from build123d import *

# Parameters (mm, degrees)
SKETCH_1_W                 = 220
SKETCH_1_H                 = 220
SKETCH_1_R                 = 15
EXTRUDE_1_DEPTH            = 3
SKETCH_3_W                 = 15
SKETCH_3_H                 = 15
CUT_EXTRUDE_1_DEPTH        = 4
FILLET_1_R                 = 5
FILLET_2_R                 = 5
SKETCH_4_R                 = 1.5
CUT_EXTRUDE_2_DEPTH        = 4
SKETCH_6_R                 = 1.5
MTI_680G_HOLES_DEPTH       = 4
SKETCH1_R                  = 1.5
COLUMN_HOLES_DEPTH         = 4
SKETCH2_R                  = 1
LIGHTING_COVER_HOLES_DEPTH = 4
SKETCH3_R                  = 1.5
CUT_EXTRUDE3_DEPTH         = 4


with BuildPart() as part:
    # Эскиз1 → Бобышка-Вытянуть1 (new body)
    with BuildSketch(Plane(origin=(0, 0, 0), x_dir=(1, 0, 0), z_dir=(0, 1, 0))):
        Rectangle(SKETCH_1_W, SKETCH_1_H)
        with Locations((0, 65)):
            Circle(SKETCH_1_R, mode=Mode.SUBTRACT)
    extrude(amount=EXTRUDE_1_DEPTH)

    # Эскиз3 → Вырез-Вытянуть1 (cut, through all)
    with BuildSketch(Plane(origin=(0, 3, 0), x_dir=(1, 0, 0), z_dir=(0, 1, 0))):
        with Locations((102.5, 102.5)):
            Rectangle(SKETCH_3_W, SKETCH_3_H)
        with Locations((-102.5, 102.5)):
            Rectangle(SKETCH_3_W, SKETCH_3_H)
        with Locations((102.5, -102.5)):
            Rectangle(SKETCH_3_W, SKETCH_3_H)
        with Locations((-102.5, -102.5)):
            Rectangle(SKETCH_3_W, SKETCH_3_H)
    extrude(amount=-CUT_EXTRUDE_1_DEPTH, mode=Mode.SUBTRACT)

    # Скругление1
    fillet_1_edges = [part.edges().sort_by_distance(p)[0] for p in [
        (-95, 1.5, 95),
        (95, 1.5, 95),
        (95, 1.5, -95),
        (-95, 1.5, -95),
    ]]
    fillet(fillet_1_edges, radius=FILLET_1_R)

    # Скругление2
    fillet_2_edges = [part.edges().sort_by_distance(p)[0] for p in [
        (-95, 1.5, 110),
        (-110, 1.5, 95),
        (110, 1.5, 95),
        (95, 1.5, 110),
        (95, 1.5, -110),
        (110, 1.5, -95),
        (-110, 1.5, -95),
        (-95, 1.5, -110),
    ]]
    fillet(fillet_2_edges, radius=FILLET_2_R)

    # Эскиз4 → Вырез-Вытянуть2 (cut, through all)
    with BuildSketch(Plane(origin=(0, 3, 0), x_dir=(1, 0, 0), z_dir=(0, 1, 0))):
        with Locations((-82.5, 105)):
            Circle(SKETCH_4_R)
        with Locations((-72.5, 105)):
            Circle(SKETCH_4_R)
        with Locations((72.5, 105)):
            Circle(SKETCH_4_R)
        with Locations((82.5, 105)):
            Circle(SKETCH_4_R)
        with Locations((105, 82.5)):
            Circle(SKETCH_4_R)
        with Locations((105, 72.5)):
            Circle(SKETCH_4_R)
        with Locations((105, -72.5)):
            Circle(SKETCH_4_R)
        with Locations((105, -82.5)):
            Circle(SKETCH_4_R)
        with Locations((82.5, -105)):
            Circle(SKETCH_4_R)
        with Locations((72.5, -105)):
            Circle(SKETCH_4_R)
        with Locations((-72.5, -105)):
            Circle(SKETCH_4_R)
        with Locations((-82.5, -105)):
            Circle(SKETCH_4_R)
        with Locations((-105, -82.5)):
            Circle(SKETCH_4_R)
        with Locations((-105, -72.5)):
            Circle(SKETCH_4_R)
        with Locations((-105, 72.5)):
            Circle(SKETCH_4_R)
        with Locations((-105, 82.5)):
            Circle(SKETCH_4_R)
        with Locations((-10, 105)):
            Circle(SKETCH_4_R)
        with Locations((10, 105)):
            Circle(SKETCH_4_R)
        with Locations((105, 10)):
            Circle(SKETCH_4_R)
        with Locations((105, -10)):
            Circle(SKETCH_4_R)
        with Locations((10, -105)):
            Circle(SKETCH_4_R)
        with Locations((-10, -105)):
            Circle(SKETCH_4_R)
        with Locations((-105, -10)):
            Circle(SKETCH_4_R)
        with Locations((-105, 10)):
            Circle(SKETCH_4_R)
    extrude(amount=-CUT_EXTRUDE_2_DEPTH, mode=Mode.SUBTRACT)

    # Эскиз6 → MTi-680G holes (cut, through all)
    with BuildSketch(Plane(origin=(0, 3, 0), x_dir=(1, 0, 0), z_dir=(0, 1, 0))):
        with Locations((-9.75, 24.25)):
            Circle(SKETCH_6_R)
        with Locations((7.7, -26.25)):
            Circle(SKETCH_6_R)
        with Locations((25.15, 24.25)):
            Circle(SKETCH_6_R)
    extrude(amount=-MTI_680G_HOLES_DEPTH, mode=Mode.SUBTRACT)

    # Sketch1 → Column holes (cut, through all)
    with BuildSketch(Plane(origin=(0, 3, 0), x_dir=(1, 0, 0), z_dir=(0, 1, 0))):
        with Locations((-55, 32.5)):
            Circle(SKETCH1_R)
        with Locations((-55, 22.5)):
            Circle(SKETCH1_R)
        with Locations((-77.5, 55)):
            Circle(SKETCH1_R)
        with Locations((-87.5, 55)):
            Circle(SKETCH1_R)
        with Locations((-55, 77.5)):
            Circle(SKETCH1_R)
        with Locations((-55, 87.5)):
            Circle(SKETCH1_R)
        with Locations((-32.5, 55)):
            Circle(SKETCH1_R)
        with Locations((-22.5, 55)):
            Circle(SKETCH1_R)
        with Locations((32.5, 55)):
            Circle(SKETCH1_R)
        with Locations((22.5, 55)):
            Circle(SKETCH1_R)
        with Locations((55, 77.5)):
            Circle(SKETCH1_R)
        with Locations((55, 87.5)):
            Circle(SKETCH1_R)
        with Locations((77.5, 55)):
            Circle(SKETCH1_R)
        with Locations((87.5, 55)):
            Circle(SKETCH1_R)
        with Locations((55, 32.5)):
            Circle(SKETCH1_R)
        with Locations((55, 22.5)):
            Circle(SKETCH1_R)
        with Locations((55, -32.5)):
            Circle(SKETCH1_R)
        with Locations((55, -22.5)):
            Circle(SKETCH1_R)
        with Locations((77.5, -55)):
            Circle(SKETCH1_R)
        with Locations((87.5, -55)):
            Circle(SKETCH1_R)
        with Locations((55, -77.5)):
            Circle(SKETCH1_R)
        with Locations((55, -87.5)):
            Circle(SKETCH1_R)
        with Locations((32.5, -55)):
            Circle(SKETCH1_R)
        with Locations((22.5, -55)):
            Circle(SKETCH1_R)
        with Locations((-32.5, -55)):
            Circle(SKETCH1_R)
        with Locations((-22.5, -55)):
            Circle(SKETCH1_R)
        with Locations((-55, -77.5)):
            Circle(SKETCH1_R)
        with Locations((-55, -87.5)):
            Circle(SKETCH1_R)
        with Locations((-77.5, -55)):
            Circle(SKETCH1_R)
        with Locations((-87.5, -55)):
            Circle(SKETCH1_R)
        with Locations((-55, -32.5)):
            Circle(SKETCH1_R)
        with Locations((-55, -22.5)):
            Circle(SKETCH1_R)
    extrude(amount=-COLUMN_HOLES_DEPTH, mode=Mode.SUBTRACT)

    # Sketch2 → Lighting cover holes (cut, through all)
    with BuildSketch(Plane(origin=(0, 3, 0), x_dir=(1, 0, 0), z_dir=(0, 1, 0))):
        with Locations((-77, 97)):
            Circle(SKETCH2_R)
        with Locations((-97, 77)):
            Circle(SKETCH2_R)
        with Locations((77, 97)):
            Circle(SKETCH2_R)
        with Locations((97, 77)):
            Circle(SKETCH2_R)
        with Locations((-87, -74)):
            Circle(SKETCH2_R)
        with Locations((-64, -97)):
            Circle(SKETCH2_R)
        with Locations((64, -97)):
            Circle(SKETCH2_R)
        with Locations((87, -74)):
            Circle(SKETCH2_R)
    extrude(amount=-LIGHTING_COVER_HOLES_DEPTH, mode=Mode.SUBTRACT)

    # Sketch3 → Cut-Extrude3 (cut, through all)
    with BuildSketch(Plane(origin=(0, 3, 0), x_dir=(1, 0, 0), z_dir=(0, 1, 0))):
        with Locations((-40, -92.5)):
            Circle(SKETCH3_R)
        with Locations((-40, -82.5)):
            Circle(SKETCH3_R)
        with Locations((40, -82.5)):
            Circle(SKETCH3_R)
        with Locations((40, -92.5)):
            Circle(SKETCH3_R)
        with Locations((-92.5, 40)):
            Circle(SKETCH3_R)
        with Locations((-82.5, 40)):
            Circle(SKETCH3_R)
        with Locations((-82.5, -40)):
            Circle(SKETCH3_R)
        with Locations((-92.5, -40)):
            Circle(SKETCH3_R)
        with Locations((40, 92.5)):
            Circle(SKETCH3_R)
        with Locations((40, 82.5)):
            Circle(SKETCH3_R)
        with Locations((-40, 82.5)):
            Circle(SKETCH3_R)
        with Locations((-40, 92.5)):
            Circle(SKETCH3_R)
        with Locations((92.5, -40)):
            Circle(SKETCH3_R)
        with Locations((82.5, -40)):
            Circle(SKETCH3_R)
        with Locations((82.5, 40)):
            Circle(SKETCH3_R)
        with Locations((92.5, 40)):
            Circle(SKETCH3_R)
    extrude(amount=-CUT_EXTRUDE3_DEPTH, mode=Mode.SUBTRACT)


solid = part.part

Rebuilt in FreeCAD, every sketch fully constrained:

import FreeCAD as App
import Part
import Sketcher

V = App.Vector


def edges_at(feature, points):
    """Names of the edges that pass closest to the given points."""
    edges = feature.Shape.Edges
    near = lambda p: min(range(len(edges)), key=lambda i: edges[i].distToShape(Part.Vertex(*p))[0])
    return sorted({f"Edge{near(p) + 1}" for p in points})


def add_polygon(sketch, points):
    """Adds a closed chain of lines whose ends are joined by coincident constraints."""
    first, n = sketch.GeometryCount, len(points)
    for a, b in zip(points, points[1:] + points[:1]):
        sketch.addGeometry(Part.LineSegment(App.Vector(*a, 0), App.Vector(*b, 0)), False)
    for i in range(n):
        sketch.addConstraint(Sketcher.Constraint("Coincident", first + i, 2, first + (i + 1) % n, 1))

doc = App.newDocument("Part")
body = doc.addObject("PartDesign::Body", "Body")

# Sketch on XZ plane
sketch1 = body.newObject("Sketcher::SketchObject", "Sketch")
sketch1.AttachmentSupport = (doc.getObject("XZ_Plane"), [""])
sketch1.MapMode = "FlatFace"
add_polygon(sketch1, [(-110, -110), (-110, 110), (110, 110), (110, -110)])  # lines 0-3
sketch1.addGeometry(Part.Circle(V(0, -65, 0), V(0, 0, 1), 15), False)  # 4
sketch1.addConstraint([
    Sketcher.Constraint("Vertical", 0),
    Sketcher.Constraint("Horizontal", 1),
    Sketcher.Constraint("Vertical", 2),
    Sketcher.Constraint("Horizontal", 3),
    Sketcher.Constraint("Symmetric", 0, 2, 2, 2, -1, 1),
    Sketcher.Constraint("PointOnObject", 4, 3, -2),
    Sketcher.Constraint("Equal", 3, 0),
    Sketcher.Constraint("Diameter", 4, 30.0),
    Sketcher.Constraint("DistanceX", 1, 1, 1, 2, 220.0),
    Sketcher.Constraint("DistanceY", 4, 3, -1, 1, 65.0),
])
pad1 = body.newObject("PartDesign::Pad", "Pad")
pad1.Profile = sketch1
pad1.Length = 3
pad1.Reversed = True

# Sketch on XZ plane
sketch2 = body.newObject("Sketcher::SketchObject", "Sketch001")
sketch2.AttachmentSupport = (doc.getObject("XZ_Plane"), [""])
sketch2.MapMode = "FlatFace"
sketch2.AttachmentOffset = App.Placement(V(0, 0, -3), App.Rotation())
add_polygon(sketch2, [(95, -110), (95, -95), (110, -95), (110, -110)])  # lines 0-3
add_polygon(sketch2, [(-110, -110), (-110, -95), (-95, -95), (-95, -110)])  # lines 4-7
add_polygon(sketch2, [(95, 95), (95, 110), (110, 110), (110, 95)])  # lines 8-11
add_polygon(sketch2, [(-110, 95), (-110, 110), (-95, 110), (-95, 95)])  # lines 12-15
sketch2.addConstraint([
    Sketcher.Constraint("Vertical", 0),
    Sketcher.Constraint("Horizontal", 1),
    Sketcher.Constraint("Vertical", 2),
    Sketcher.Constraint("Horizontal", 3),
    Sketcher.Constraint("Vertical", 4),
    Sketcher.Constraint("Horizontal", 5),
    Sketcher.Constraint("Vertical", 6),
    Sketcher.Constraint("Horizontal", 7),
    Sketcher.Constraint("Vertical", 8),
    Sketcher.Constraint("Horizontal", 9),
    Sketcher.Constraint("Vertical", 10),
    Sketcher.Constraint("Horizontal", 11),
    Sketcher.Constraint("Vertical", 12),
    Sketcher.Constraint("Horizontal", 13),
    Sketcher.Constraint("Vertical", 14),
    Sketcher.Constraint("Horizontal", 15),
    Sketcher.Constraint("Symmetric", 6, 2, 8, 2, -1, 1),
    Sketcher.Constraint("Symmetric", 4, 2, 10, 2, -1, 1),
    Sketcher.Constraint("Symmetric", 2, 2, 12, 2, -1, 1),
    Sketcher.Constraint("Symmetric", 0, 2, 14, 2, -1, 1),
    Sketcher.Constraint("Symmetric", 1, 2, 4, 2, -2),
    Sketcher.Constraint("Symmetric", 3, 2, 6, 2, -2),
    Sketcher.Constraint("Equal", 15, 0),
    Sketcher.Constraint("DistanceX", 1, 1, 1, 2, 15.0),
    Sketcher.Constraint("DistanceX", -1, 1, 0, 2, 95.0),
    Sketcher.Constraint("DistanceY", 0, 2, -1, 1, 95.0),
])
pocket1 = body.newObject("PartDesign::Pocket", "Pocket")
pocket1.Profile = sketch2
pocket1.Type = "ThroughAll"
pocket1.Reversed = True
doc.recompute()

fillet = body.newObject("PartDesign::Fillet", "Fillet")
fillet.Base = (pocket1, edges_at(pocket1, [
    (-95, 1.5, 95),
    (95, 1.5, 95),
    (95, 1.5, -95),
    (-95, 1.5, -95),
]))
fillet.Radius = 5
doc.recompute()

fillet2 = body.newObject("PartDesign::Fillet", "Fillet001")
fillet2.Base = (fillet, edges_at(fillet, [
    (-95, 1.5, 110),
    (-110, 1.5, 95),
    (110, 1.5, 95),
    (95, 1.5, 110),
    (95, 1.5, -110),
    (110, 1.5, -95),
    (-110, 1.5, -95),
    (-95, 1.5, -110),
]))
fillet2.Radius = 5

# Sketch on XZ plane
sketch3 = body.newObject("Sketcher::SketchObject", "Sketch002")
sketch3.AttachmentSupport = (doc.getObject("XZ_Plane"), [""])
sketch3.MapMode = "FlatFace"
sketch3.AttachmentOffset = App.Placement(V(0, 0, -3), App.Rotation())
sketch3.addGeometry([
    Part.Circle(V(-82.5, -105, 0), V(0, 0, 1), 1.5),  # 0
    Part.Circle(V(-72.5, -105, 0), V(0, 0, 1), 1.5),  # 1
    Part.Circle(V(72.5, -105, 0), V(0, 0, 1), 1.5),  # 2
    Part.Circle(V(82.5, -105, 0), V(0, 0, 1), 1.5),  # 3
    Part.Circle(V(105, -82.5, 0), V(0, 0, 1), 1.5),  # 4
    Part.Circle(V(105, -72.5, 0), V(0, 0, 1), 1.5),  # 5
    Part.Circle(V(105, 72.5, 0), V(0, 0, 1), 1.5),  # 6
    Part.Circle(V(105, 82.5, 0), V(0, 0, 1), 1.5),  # 7
    Part.Circle(V(82.5, 105, 0), V(0, 0, 1), 1.5),  # 8
    Part.Circle(V(72.5, 105, 0), V(0, 0, 1), 1.5),  # 9
    Part.Circle(V(-72.5, 105, 0), V(0, 0, 1), 1.5),  # 10
    Part.Circle(V(-82.5, 105, 0), V(0, 0, 1), 1.5),  # 11
    Part.Circle(V(-105, 82.5, 0), V(0, 0, 1), 1.5),  # 12
    Part.Circle(V(-105, 72.5, 0), V(0, 0, 1), 1.5),  # 13
    Part.Circle(V(-105, -72.5, 0), V(0, 0, 1), 1.5),  # 14
    Part.Circle(V(-105, -82.5, 0), V(0, 0, 1), 1.5),  # 15
    Part.Circle(V(-10, -105, 0), V(0, 0, 1), 1.5),  # 16
    Part.Circle(V(10, -105, 0), V(0, 0, 1), 1.5),  # 17
    Part.Circle(V(105, -10, 0), V(0, 0, 1), 1.5),  # 18
    Part.Circle(V(105, 10, 0), V(0, 0, 1), 1.5),  # 19
    Part.Circle(V(10, 105, 0), V(0, 0, 1), 1.5),  # 20
    Part.Circle(V(-10, 105, 0), V(0, 0, 1), 1.5),  # 21
    Part.Circle(V(-105, 10, 0), V(0, 0, 1), 1.5),  # 22
    Part.Circle(V(-105, -10, 0), V(0, 0, 1), 1.5),  # 23
], False)
sketch3.addConstraint([
    Sketcher.Constraint("Equal", 0, 1),
    Sketcher.Constraint("Equal", 1, 2),
    Sketcher.Constraint("Equal", 2, 3),
    Sketcher.Constraint("Equal", 3, 4),
    Sketcher.Constraint("Equal", 4, 5),
    Sketcher.Constraint("Equal", 5, 6),
    Sketcher.Constraint("Equal", 6, 7),
    Sketcher.Constraint("Equal", 7, 8),
    Sketcher.Constraint("Equal", 8, 9),
    Sketcher.Constraint("Equal", 9, 10),
    Sketcher.Constraint("Equal", 10, 11),
    Sketcher.Constraint("Equal", 11, 12),
    Sketcher.Constraint("Equal", 12, 13),
    Sketcher.Constraint("Equal", 13, 14),
    Sketcher.Constraint("Equal", 14, 15),
    Sketcher.Constraint("Equal", 15, 16),
    Sketcher.Constraint("Equal", 16, 17),
    Sketcher.Constraint("Equal", 17, 18),
    Sketcher.Constraint("Equal", 18, 19),
    Sketcher.Constraint("Equal", 19, 20),
    Sketcher.Constraint("Equal", 20, 21),
    Sketcher.Constraint("Equal", 21, 22),
    Sketcher.Constraint("Equal", 22, 23),
    Sketcher.Constraint("Symmetric", 0, 3, 8, 3, -1, 1),
    Sketcher.Constraint("Symmetric", 1, 3, 9, 3, -1, 1),
    Sketcher.Constraint("Symmetric", 2, 3, 10, 3, -1, 1),
    Sketcher.Constraint("Symmetric", 3, 3, 11, 3, -1, 1),
    Sketcher.Constraint("Symmetric", 4, 3, 12, 3, -1, 1),
    Sketcher.Constraint("Symmetric", 5, 3, 13, 3, -1, 1),
    Sketcher.Constraint("Symmetric", 6, 3, 14, 3, -1, 1),
    Sketcher.Constraint("Symmetric", 7, 3, 15, 3, -1, 1),
    Sketcher.Constraint("Symmetric", 16, 3, 20, 3, -1, 1),
    Sketcher.Constraint("Symmetric", 17, 3, 21, 3, -1, 1),
    Sketcher.Constraint("Symmetric", 18, 3, 22, 3, -1, 1),
    Sketcher.Constraint("Symmetric", 19, 3, 23, 3, -1, 1),
    Sketcher.Constraint("Symmetric", 1, 3, 2, 3, -2),
    Sketcher.Constraint("Symmetric", 0, 3, 3, 3, -2),
    Sketcher.Constraint("Symmetric", 7, 3, 12, 3, -2),
    Sketcher.Constraint("Symmetric", 6, 3, 13, 3, -2),
    Sketcher.Constraint("Symmetric", 16, 3, 17, 3, -2),
    Sketcher.Constraint("Symmetric", 19, 3, 22, 3, -2),
    Sketcher.Constraint("Horizontal", 0, 3, 1, 3),
    Sketcher.Constraint("Horizontal", 3, 3, 16, 3),
    Sketcher.Constraint("Vertical", 4, 3, 5, 3),
    Sketcher.Constraint("Vertical", 7, 3, 18, 3),
    Sketcher.Constraint("Diameter", 0, 3.0),
    Sketcher.Constraint("DistanceY", 0, 3, -1, 1, 105.0),
    Sketcher.Constraint("DistanceX", -1, 1, 4, 3, 105.0),
    Sketcher.Constraint("DistanceX", 16, 3, -1, 1, 10.0),
    Sketcher.Constraint("DistanceY", 18, 3, -1, 1, 10.0),
    Sketcher.Constraint("DistanceX", 0, 3, 1, 3, 10.0),
    Sketcher.Constraint("DistanceX", 1, 3, 2, 3, 145.0),
    Sketcher.Constraint("DistanceY", 4, 3, 5, 3, 10.0),
    Sketcher.Constraint("DistanceY", 5, 3, 6, 3, 145.0),
])
pocket2 = body.newObject("PartDesign::Pocket", "Pocket001")
pocket2.Profile = sketch3
pocket2.Type = "ThroughAll"
pocket2.Reversed = True

# Sketch on XZ plane
sketch4 = body.newObject("Sketcher::SketchObject", "Sketch003")
sketch4.AttachmentSupport = (doc.getObject("XZ_Plane"), [""])
sketch4.MapMode = "FlatFace"
sketch4.AttachmentOffset = App.Placement(V(0, 0, -3), App.Rotation())
sketch4.addGeometry([
    Part.Circle(V(-9.8, -24.2, 0), V(0, 0, 1), 1.5),
    Part.Circle(V(7.7, 26.2, 0), V(0, 0, 1), 1.5),
    Part.Circle(V(25.1, -24.2, 0), V(0, 0, 1), 1.5),
], False)
sketch4.addConstraint([
    Sketcher.Constraint("Equal", 0, 1),
    Sketcher.Constraint("Equal", 1, 2),
    Sketcher.Constraint("Horizontal", 0, 3, 2, 3),
    Sketcher.Constraint("Diameter", 0, 3.0),
    Sketcher.Constraint("DistanceX", -1, 1, 1, 3, 7.7),
    Sketcher.Constraint("DistanceY", 0, 3, 1, 3, 50.5),
    Sketcher.Constraint("DistanceX", 0, 3, 2, 3, 34.9),
    Sketcher.Constraint("DistanceX", 0, 3, -1, 1, 9.75),
    Sketcher.Constraint("DistanceY", 0, 3, -1, 1, 24.25),
])
pocket3 = body.newObject("PartDesign::Pocket", "Pocket002")
pocket3.Profile = sketch4
pocket3.Type = "ThroughAll"
pocket3.Reversed = True

# Sketch on XZ plane
sketch5 = body.newObject("Sketcher::SketchObject", "Sketch004")
sketch5.AttachmentSupport = (doc.getObject("XZ_Plane"), [""])
sketch5.MapMode = "FlatFace"
sketch5.AttachmentOffset = App.Placement(V(0, 0, -3), App.Rotation())
sketch5.addGeometry([
    Part.Circle(V(-55, -32.5, 0), V(0, 0, 1), 1.5),  # 0
    Part.Circle(V(-55, -22.5, 0), V(0, 0, 1), 1.5),  # 1
    Part.Circle(V(-77.5, -55, 0), V(0, 0, 1), 1.5),  # 2
    Part.Circle(V(-87.5, -55, 0), V(0, 0, 1), 1.5),  # 3
    Part.Circle(V(-55, -77.5, 0), V(0, 0, 1), 1.5),  # 4
    Part.Circle(V(-55, -87.5, 0), V(0, 0, 1), 1.5),  # 5
    Part.Circle(V(-32.5, -55, 0), V(0, 0, 1), 1.5),  # 6
    Part.Circle(V(-22.5, -55, 0), V(0, 0, 1), 1.5),  # 7
    Part.Circle(V(32.5, -55, 0), V(0, 0, 1), 1.5),  # 8
    Part.Circle(V(22.5, -55, 0), V(0, 0, 1), 1.5),  # 9
    Part.Circle(V(55, -77.5, 0), V(0, 0, 1), 1.5),  # 10
    Part.Circle(V(55, -87.5, 0), V(0, 0, 1), 1.5),  # 11
    Part.Circle(V(77.5, -55, 0), V(0, 0, 1), 1.5),  # 12
    Part.Circle(V(87.5, -55, 0), V(0, 0, 1), 1.5),  # 13
    Part.Circle(V(55, -32.5, 0), V(0, 0, 1), 1.5),  # 14
    Part.Circle(V(55, -22.5, 0), V(0, 0, 1), 1.5),  # 15
    Part.Circle(V(55, 32.5, 0), V(0, 0, 1), 1.5),  # 16
    Part.Circle(V(55, 22.5, 0), V(0, 0, 1), 1.5),  # 17
    Part.Circle(V(77.5, 55, 0), V(0, 0, 1), 1.5),  # 18
    Part.Circle(V(87.5, 55, 0), V(0, 0, 1), 1.5),  # 19
    Part.Circle(V(55, 77.5, 0), V(0, 0, 1), 1.5),  # 20
    Part.Circle(V(55, 87.5, 0), V(0, 0, 1), 1.5),  # 21
    Part.Circle(V(32.5, 55, 0), V(0, 0, 1), 1.5),  # 22
    Part.Circle(V(22.5, 55, 0), V(0, 0, 1), 1.5),  # 23
    Part.Circle(V(-32.5, 55, 0), V(0, 0, 1), 1.5),  # 24
    Part.Circle(V(-22.5, 55, 0), V(0, 0, 1), 1.5),  # 25
    Part.Circle(V(-55, 77.5, 0), V(0, 0, 1), 1.5),  # 26
    Part.Circle(V(-55, 87.5, 0), V(0, 0, 1), 1.5),  # 27
    Part.Circle(V(-77.5, 55, 0), V(0, 0, 1), 1.5),  # 28
    Part.Circle(V(-87.5, 55, 0), V(0, 0, 1), 1.5),  # 29
    Part.Circle(V(-55, 32.5, 0), V(0, 0, 1), 1.5),  # 30
    Part.Circle(V(-55, 22.5, 0), V(0, 0, 1), 1.5),  # 31
], False)
sketch5.addConstraint([
    Sketcher.Constraint("Equal", 0, 1),
    Sketcher.Constraint("Equal", 1, 2),
    Sketcher.Constraint("Equal", 2, 3),
    Sketcher.Constraint("Equal", 3, 4),
    Sketcher.Constraint("Equal", 4, 5),
    Sketcher.Constraint("Equal", 5, 6),
    Sketcher.Constraint("Equal", 6, 7),
    Sketcher.Constraint("Equal", 7, 8),
    Sketcher.Constraint("Equal", 8, 9),
    Sketcher.Constraint("Equal", 9, 10),
    Sketcher.Constraint("Equal", 10, 11),
    Sketcher.Constraint("Equal", 11, 12),
    Sketcher.Constraint("Equal", 12, 13),
    Sketcher.Constraint("Equal", 13, 14),
    Sketcher.Constraint("Equal", 14, 15),
    Sketcher.Constraint("Equal", 15, 16),
    Sketcher.Constraint("Equal", 16, 17),
    Sketcher.Constraint("Equal", 17, 18),
    Sketcher.Constraint("Equal", 18, 19),
    Sketcher.Constraint("Equal", 19, 20),
    Sketcher.Constraint("Equal", 20, 21),
    Sketcher.Constraint("Equal", 21, 22),
    Sketcher.Constraint("Equal", 22, 23),
    Sketcher.Constraint("Equal", 23, 24),
    Sketcher.Constraint("Equal", 24, 25),
    Sketcher.Constraint("Equal", 25, 26),
    Sketcher.Constraint("Equal", 26, 27),
    Sketcher.Constraint("Equal", 27, 28),
    Sketcher.Constraint("Equal", 28, 29),
    Sketcher.Constraint("Equal", 29, 30),
    Sketcher.Constraint("Equal", 30, 31),
    Sketcher.Constraint("Symmetric", 0, 3, 16, 3, -1, 1),
    Sketcher.Constraint("Symmetric", 1, 3, 17, 3, -1, 1),
    Sketcher.Constraint("Symmetric", 2, 3, 18, 3, -1, 1),
    Sketcher.Constraint("Symmetric", 3, 3, 19, 3, -1, 1),
    Sketcher.Constraint("Symmetric", 4, 3, 20, 3, -1, 1),
    Sketcher.Constraint("Symmetric", 5, 3, 21, 3, -1, 1),
    Sketcher.Constraint("Symmetric", 6, 3, 22, 3, -1, 1),
    Sketcher.Constraint("Symmetric", 7, 3, 23, 3, -1, 1),
    Sketcher.Constraint("Symmetric", 8, 3, 24, 3, -1, 1),
    Sketcher.Constraint("Symmetric", 9, 3, 25, 3, -1, 1),
    Sketcher.Constraint("Symmetric", 10, 3, 26, 3, -1, 1),
    Sketcher.Constraint("Symmetric", 11, 3, 27, 3, -1, 1),
    Sketcher.Constraint("Symmetric", 12, 3, 28, 3, -1, 1),
    Sketcher.Constraint("Symmetric", 13, 3, 29, 3, -1, 1),
    Sketcher.Constraint("Symmetric", 14, 3, 30, 3, -1, 1),
    Sketcher.Constraint("Symmetric", 15, 3, 31, 3, -1, 1),
    Sketcher.Constraint("Symmetric", 6, 3, 8, 3, -2),
    Sketcher.Constraint("Symmetric", 7, 3, 9, 3, -2),
    Sketcher.Constraint("Symmetric", 4, 3, 10, 3, -2),
    Sketcher.Constraint("Symmetric", 5, 3, 11, 3, -2),
    Sketcher.Constraint("Symmetric", 2, 3, 12, 3, -2),
    Sketcher.Constraint("Symmetric", 3, 3, 13, 3, -2),
    Sketcher.Constraint("Symmetric", 0, 3, 14, 3, -2),
    Sketcher.Constraint("Symmetric", 1, 3, 15, 3, -2),
    Sketcher.Constraint("Horizontal", 2, 3, 3, 3),
    Sketcher.Constraint("Horizontal", 3, 3, 6, 3),
    Sketcher.Constraint("Horizontal", 6, 3, 7, 3),
    Sketcher.Constraint("Vertical", 0, 3, 1, 3),
    Sketcher.Constraint("Vertical", 1, 3, 4, 3),
    Sketcher.Constraint("Vertical", 4, 3, 5, 3),
    Sketcher.Constraint("Diameter", 0, 3.0),
    Sketcher.Constraint("DistanceX", 0, 3, -1, 1, 55.0),
    Sketcher.Constraint("DistanceY", 2, 3, -1, 1, 55.0),
    Sketcher.Constraint("DistanceY", 0, 3, 1, 3, 10.0),
    Sketcher.Constraint("DistanceX", 3, 3, 2, 3, 10.0),
    Sketcher.Constraint("DistanceY", 4, 3, 0, 3, 45.0),
    Sketcher.Constraint("DistanceY", 5, 3, 4, 3, 10.0),
    Sketcher.Constraint("DistanceX", 2, 3, 6, 3, 45.0),
    Sketcher.Constraint("DistanceX", 6, 3, 7, 3, 10.0),
    Sketcher.Constraint("DistanceX", 7, 3, 8, 3, 55.0),
    Sketcher.Constraint("DistanceY", 15, 3, 16, 3, 55.0),
])
pocket4 = body.newObject("PartDesign::Pocket", "Pocket003")
pocket4.Profile = sketch5
pocket4.Type = "ThroughAll"
pocket4.Reversed = True

# Sketch on XZ plane
sketch6 = body.newObject("Sketcher::SketchObject", "Sketch005")
sketch6.AttachmentSupport = (doc.getObject("XZ_Plane"), [""])
sketch6.MapMode = "FlatFace"
sketch6.AttachmentOffset = App.Placement(V(0, 0, -3), App.Rotation())
sketch6.addGeometry([
    Part.Circle(V(-77, -97, 0), V(0, 0, 1), 1),  # 0
    Part.Circle(V(-97, -77, 0), V(0, 0, 1), 1),  # 1
    Part.Circle(V(77, -97, 0), V(0, 0, 1), 1),  # 2
    Part.Circle(V(97, -77, 0), V(0, 0, 1), 1),  # 3
    Part.Circle(V(-87, 74, 0), V(0, 0, 1), 1),  # 4
    Part.Circle(V(-64, 97, 0), V(0, 0, 1), 1),  # 5
    Part.Circle(V(64, 97, 0), V(0, 0, 1), 1),  # 6
    Part.Circle(V(87, 74, 0), V(0, 0, 1), 1),  # 7
], False)
sketch6.addConstraint([
    Sketcher.Constraint("Equal", 0, 1),
    Sketcher.Constraint("Equal", 1, 2),
    Sketcher.Constraint("Equal", 2, 3),
    Sketcher.Constraint("Equal", 3, 4),
    Sketcher.Constraint("Equal", 4, 5),
    Sketcher.Constraint("Equal", 5, 6),
    Sketcher.Constraint("Equal", 6, 7),
    Sketcher.Constraint("Symmetric", 0, 3, 2, 3, -2),
    Sketcher.Constraint("Symmetric", 1, 3, 3, 3, -2),
    Sketcher.Constraint("Symmetric", 5, 3, 6, 3, -2),
    Sketcher.Constraint("Symmetric", 4, 3, 7, 3, -2),
    Sketcher.Constraint("Diameter", 0, 2.0),
    Sketcher.Constraint("DistanceX", 0, 3, -1, 1, 77.0),
    Sketcher.Constraint("DistanceY", 0, 3, -1, 1, 97.0),
    Sketcher.Constraint("DistanceX", 1, 3, -1, 1, 97.0),
    Sketcher.Constraint("DistanceY", 1, 3, -1, 1, 77.0),
    Sketcher.Constraint("DistanceX", 4, 3, -1, 1, 87.0),
    Sketcher.Constraint("DistanceY", -1, 1, 4, 3, 74.0),
    Sketcher.Constraint("DistanceX", 5, 3, -1, 1, 64.0),
    Sketcher.Constraint("DistanceY", -1, 1, 5, 3, 97.0),
])
pocket5 = body.newObject("PartDesign::Pocket", "Pocket004")
pocket5.Profile = sketch6
pocket5.Type = "ThroughAll"
pocket5.Reversed = True

# Sketch on XZ plane
sketch7 = body.newObject("Sketcher::SketchObject", "Sketch006")
sketch7.AttachmentSupport = (doc.getObject("XZ_Plane"), [""])
sketch7.MapMode = "FlatFace"
sketch7.AttachmentOffset = App.Placement(V(0, 0, -3), App.Rotation())
sketch7.addGeometry([
    Part.Circle(V(-40, 92.5, 0), V(0, 0, 1), 1.5),  # 0
    Part.Circle(V(-40, 82.5, 0), V(0, 0, 1), 1.5),  # 1
    Part.Circle(V(40, 82.5, 0), V(0, 0, 1), 1.5),  # 2
    Part.Circle(V(40, 92.5, 0), V(0, 0, 1), 1.5),  # 3
    Part.Circle(V(-92.5, -40, 0), V(0, 0, 1), 1.5),  # 4
    Part.Circle(V(-82.5, -40, 0), V(0, 0, 1), 1.5),  # 5
    Part.Circle(V(-82.5, 40, 0), V(0, 0, 1), 1.5),  # 6
    Part.Circle(V(-92.5, 40, 0), V(0, 0, 1), 1.5),  # 7
    Part.Circle(V(40, -92.5, 0), V(0, 0, 1), 1.5),  # 8
    Part.Circle(V(40, -82.5, 0), V(0, 0, 1), 1.5),  # 9
    Part.Circle(V(-40, -82.5, 0), V(0, 0, 1), 1.5),  # 10
    Part.Circle(V(-40, -92.5, 0), V(0, 0, 1), 1.5),  # 11
    Part.Circle(V(92.5, 40, 0), V(0, 0, 1), 1.5),  # 12
    Part.Circle(V(82.5, 40, 0), V(0, 0, 1), 1.5),  # 13
    Part.Circle(V(82.5, -40, 0), V(0, 0, 1), 1.5),  # 14
    Part.Circle(V(92.5, -40, 0), V(0, 0, 1), 1.5),  # 15
], False)
sketch7.addConstraint([
    Sketcher.Constraint("Equal", 0, 1),
    Sketcher.Constraint("Equal", 1, 2),
    Sketcher.Constraint("Equal", 2, 3),
    Sketcher.Constraint("Equal", 3, 4),
    Sketcher.Constraint("Equal", 4, 5),
    Sketcher.Constraint("Equal", 5, 6),
    Sketcher.Constraint("Equal", 6, 7),
    Sketcher.Constraint("Equal", 7, 8),
    Sketcher.Constraint("Equal", 8, 9),
    Sketcher.Constraint("Equal", 9, 10),
    Sketcher.Constraint("Equal", 10, 11),
    Sketcher.Constraint("Equal", 11, 12),
    Sketcher.Constraint("Equal", 12, 13),
    Sketcher.Constraint("Equal", 13, 14),
    Sketcher.Constraint("Equal", 14, 15),
    Sketcher.Constraint("Symmetric", 0, 3, 8, 3, -1, 1),
    Sketcher.Constraint("Symmetric", 1, 3, 9, 3, -1, 1),
    Sketcher.Constraint("Symmetric", 2, 3, 10, 3, -1, 1),
    Sketcher.Constraint("Symmetric", 3, 3, 11, 3, -1, 1),
    Sketcher.Constraint("Symmetric", 4, 3, 12, 3, -1, 1),
    Sketcher.Constraint("Symmetric", 5, 3, 13, 3, -1, 1),
    Sketcher.Constraint("Symmetric", 6, 3, 14, 3, -1, 1),
    Sketcher.Constraint("Symmetric", 7, 3, 15, 3, -1, 1),
    Sketcher.Constraint("Symmetric", 1, 3, 2, 3, -2),
    Sketcher.Constraint("Symmetric", 0, 3, 3, 3, -2),
    Sketcher.Constraint("Symmetric", 7, 3, 12, 3, -2),
    Sketcher.Constraint("Symmetric", 6, 3, 13, 3, -2),
    Sketcher.Constraint("Horizontal", 4, 3, 5, 3),
    Sketcher.Constraint("Vertical", 0, 3, 1, 3),
    Sketcher.Constraint("Diameter", 0, 3.0),
    Sketcher.Constraint("DistanceX", 0, 3, -1, 1, 40.0),
    Sketcher.Constraint("DistanceY", 4, 3, -1, 1, 40.0),
    Sketcher.Constraint("DistanceY", 1, 3, 0, 3, 10.0),
    Sketcher.Constraint("DistanceX", 4, 3, 5, 3, 10.0),
    Sketcher.Constraint("DistanceY", 8, 3, 2, 3, 175.0),
    Sketcher.Constraint("DistanceX", 4, 3, -1, 1, 92.5),
])
pocket6 = body.newObject("PartDesign::Pocket", "Pocket005")
pocket6.Profile = sketch7
pocket6.Type = "ThroughAll"
pocket6.Reversed = True

doc.recompute()
